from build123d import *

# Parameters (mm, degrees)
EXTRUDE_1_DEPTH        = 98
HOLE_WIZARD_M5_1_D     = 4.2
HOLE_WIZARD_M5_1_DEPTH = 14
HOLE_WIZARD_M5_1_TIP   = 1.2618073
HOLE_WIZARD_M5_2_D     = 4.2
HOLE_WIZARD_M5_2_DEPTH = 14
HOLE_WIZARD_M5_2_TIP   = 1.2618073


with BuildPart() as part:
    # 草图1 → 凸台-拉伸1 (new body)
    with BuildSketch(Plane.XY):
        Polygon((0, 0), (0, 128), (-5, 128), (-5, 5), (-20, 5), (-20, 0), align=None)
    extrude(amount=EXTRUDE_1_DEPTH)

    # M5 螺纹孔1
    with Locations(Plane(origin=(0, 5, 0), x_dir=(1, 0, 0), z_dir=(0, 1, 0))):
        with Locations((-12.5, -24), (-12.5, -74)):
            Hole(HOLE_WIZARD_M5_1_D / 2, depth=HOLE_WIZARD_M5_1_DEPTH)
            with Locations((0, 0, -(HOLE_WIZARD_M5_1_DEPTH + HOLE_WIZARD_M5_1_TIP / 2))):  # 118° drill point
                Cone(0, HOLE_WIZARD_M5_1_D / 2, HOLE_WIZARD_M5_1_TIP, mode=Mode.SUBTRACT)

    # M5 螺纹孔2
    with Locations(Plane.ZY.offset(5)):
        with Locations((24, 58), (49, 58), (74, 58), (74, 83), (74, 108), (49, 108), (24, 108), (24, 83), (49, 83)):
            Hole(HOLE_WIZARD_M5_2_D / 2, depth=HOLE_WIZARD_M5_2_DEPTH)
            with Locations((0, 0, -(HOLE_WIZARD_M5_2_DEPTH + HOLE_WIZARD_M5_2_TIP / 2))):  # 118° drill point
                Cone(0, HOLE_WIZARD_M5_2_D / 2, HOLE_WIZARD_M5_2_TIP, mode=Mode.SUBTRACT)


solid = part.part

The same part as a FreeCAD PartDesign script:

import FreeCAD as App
import Part
import Sketcher
from FreeCAD import Vector


def add_polygon(sketch, points):
    """Adds a closed chain of lines whose ends are joined by coincident constraints."""
    first, n = sketch.GeometryCount, len(points)
    for a, b in zip(points, points[1:] + points[:1]):
        sketch.addGeometry(Part.LineSegment(App.Vector(*a, 0), App.Vector(*b, 0)), False)
    for i in range(n):
        sketch.addConstraint(Sketcher.Constraint("Coincident", first + i, 2, first + (i + 1) % n, 1))

doc = App.newDocument("Part")
body = doc.addObject("PartDesign::Body", "Body")

sketch1 = body.newObject("Sketcher::SketchObject", "Sketch")
sketch1.AttachmentSupport = (doc.getObject("XY_Plane"), [""])
sketch1.MapMode = "FlatFace"
add_polygon(sketch1, [(0, 0), (0, 128), (-5, 128), (-5, 5), (-20, 5), (-20, 0)])
sketch1.addConstraint([
    Sketcher.Constraint("Vertical", 0),
    Sketcher.Constraint("Horizontal", 1),
    Sketcher.Constraint("Vertical", 2),
    Sketcher.Constraint("Horizontal", 3),
    Sketcher.Constraint("Vertical", 4),
    Sketcher.Constraint("Horizontal", 5),
    Sketcher.Constraint("Coincident", 5, 2, -1, 1),
    Sketcher.Constraint("Equal", 1, 4),
    Sketcher.Constraint("DistanceX", 1, 2, 1, 1, 5.0),
    Sketcher.Constraint("DistanceX", 3, 2, 3, 1, 15.0),
    Sketcher.Constraint("DistanceY", 0, 1, 0, 2, 128.0),
])
pad1 = body.newObject("PartDesign::Pad", "Pad")
pad1.Profile = sketch1
pad1.Length = 98

sketch2 = body.newObject("Sketcher::SketchObject", "Sketch001")
sketch2.AttachmentSupport = (doc.getObject("XZ_Plane"), [""])
sketch2.MapMode = "FlatFace"
sketch2.AttachmentOffset = App.Placement(Vector(0, 0, -5), App.Rotation())
sketch2.addGeometry([
    Part.Circle(Vector(-12.5, 24, 0), Vector(0, 0, 1), 2.1),
    Part.Circle(Vector(-12.5, 74, 0), Vector(0, 0, 1), 2.1),
], False)
sketch2.addConstraint([
    Sketcher.Constraint("Equal", 0, 1),
    Sketcher.Constraint("Vertical", 0, 3, 1, 3),
    Sketcher.Constraint("Diameter", 0, 4.2),
    Sketcher.Constraint("DistanceY", -1, 1, 0, 3, 24.0),
    Sketcher.Constraint("DistanceY", -1, 1, 1, 3, 74.0),
    Sketcher.Constraint("DistanceX", 0, 3, -1, 1, 12.5),
])
doc.recompute()
hole = body.newObject("PartDesign::Hole", "Hole")
hole.Profile = sketch2
hole.ThreadType = "None"
hole.Diameter = 4.2
hole.DepthType = "Dimension"
hole.Depth = 14
hole.DrillPoint = "Angled"
hole.DrillPointAngle = 118
hole.Reversed = True

sketch3 = body.newObject("Sketcher::SketchObject", "Sketch002")
sketch3.AttachmentSupport = (doc.getObject("YZ_Plane"), [""])
sketch3.MapMode = "FlatFace"
sketch3.AttachmentOffset = App.Placement(Vector(0, 0, -5), App.Rotation())
sketch3.addGeometry([
    Part.Circle(Vector(58, 24, 0), Vector(0, 0, 1), 2.1),
    Part.Circle(Vector(58, 49, 0), Vector(0, 0, 1), 2.1),
    Part.Circle(Vector(58, 74, 0), Vector(0, 0, 1), 2.1),
    Part.Circle(Vector(83, 74, 0), Vector(0, 0, 1), 2.1),
    Part.Circle(Vector(108, 74, 0), Vector(0, 0, 1), 2.1),
    Part.Circle(Vector(108, 49, 0), Vector(0, 0, 1), 2.1),
    Part.Circle(Vector(108, 24, 0), Vector(0, 0, 1), 2.1),
    Part.Circle(Vector(83, 24, 0), Vector(0, 0, 1), 2.1),
    Part.Circle(Vector(83, 49, 0), Vector(0, 0, 1), 2.1),
], False)
sketch3.addConstraint([
    Sketcher.Constraint("Equal", 0, 1),
    Sketcher.Constraint("Equal", 1, 2),
    Sketcher.Constraint("Equal", 2, 3),
    Sketcher.Constraint("Equal", 3, 4),
    Sketcher.Constraint("Equal", 4, 5),
    Sketcher.Constraint("Equal", 5, 6),
    Sketcher.Constraint("Equal", 6, 7),
    Sketcher.Constraint("Equal", 7, 8),
    Sketcher.Constraint("Horizontal", 2, 3, 3, 3),
    Sketcher.Constraint("Horizontal", 3, 3, 4, 3),
    Sketcher.Constraint("Horizontal", 1, 3, 5, 3),
    Sketcher.Constraint("Horizontal", 0, 3, 6, 3),
    Sketcher.Constraint("Horizontal", 6, 3, 7, 3),
    Sketcher.Constraint("Horizontal", 5, 3, 8, 3),
    Sketcher.Constraint("Vertical", 0, 3, 1, 3),
    Sketcher.Constraint("Vertical", 1, 3, 2, 3),
    Sketcher.Constraint("Vertical", 4, 3, 5, 3),
    Sketcher.Constraint("Vertical", 5, 3, 6, 3),
    Sketcher.Constraint("Vertical", 3, 3, 7, 3),
    Sketcher.Constraint("Vertical", 7, 3, 8, 3),
    Sketcher.Constraint("Diameter", 0, 4.2),
    Sketcher.Constraint("DistanceX", -1, 1, 0, 3, 58.0),
    Sketcher.Constraint("DistanceY", -1, 1, 0, 3, 24.0),
    Sketcher.Constraint("DistanceY", -1, 1, 1, 3, 49.0),
    Sketcher.Constraint("DistanceY", -1, 1, 2, 3, 74.0),
    Sketcher.Constraint("DistanceX", -1, 1, 3, 3, 83.0),
    Sketcher.Constraint("DistanceX", -1, 1, 4, 3, 108.0),
])
doc.recompute()
hole2 = body.newObject("PartDesign::Hole", "Hole001")
hole2.Profile = sketch3
hole2.ThreadType = "None"
hole2.Diameter = 4.2
hole2.DepthType = "Dimension"
hole2.Depth = 14
hole2.DrillPoint = "Angled"
hole2.DrillPointAngle = 118
hole2.Reversed = True

doc.recompute()
